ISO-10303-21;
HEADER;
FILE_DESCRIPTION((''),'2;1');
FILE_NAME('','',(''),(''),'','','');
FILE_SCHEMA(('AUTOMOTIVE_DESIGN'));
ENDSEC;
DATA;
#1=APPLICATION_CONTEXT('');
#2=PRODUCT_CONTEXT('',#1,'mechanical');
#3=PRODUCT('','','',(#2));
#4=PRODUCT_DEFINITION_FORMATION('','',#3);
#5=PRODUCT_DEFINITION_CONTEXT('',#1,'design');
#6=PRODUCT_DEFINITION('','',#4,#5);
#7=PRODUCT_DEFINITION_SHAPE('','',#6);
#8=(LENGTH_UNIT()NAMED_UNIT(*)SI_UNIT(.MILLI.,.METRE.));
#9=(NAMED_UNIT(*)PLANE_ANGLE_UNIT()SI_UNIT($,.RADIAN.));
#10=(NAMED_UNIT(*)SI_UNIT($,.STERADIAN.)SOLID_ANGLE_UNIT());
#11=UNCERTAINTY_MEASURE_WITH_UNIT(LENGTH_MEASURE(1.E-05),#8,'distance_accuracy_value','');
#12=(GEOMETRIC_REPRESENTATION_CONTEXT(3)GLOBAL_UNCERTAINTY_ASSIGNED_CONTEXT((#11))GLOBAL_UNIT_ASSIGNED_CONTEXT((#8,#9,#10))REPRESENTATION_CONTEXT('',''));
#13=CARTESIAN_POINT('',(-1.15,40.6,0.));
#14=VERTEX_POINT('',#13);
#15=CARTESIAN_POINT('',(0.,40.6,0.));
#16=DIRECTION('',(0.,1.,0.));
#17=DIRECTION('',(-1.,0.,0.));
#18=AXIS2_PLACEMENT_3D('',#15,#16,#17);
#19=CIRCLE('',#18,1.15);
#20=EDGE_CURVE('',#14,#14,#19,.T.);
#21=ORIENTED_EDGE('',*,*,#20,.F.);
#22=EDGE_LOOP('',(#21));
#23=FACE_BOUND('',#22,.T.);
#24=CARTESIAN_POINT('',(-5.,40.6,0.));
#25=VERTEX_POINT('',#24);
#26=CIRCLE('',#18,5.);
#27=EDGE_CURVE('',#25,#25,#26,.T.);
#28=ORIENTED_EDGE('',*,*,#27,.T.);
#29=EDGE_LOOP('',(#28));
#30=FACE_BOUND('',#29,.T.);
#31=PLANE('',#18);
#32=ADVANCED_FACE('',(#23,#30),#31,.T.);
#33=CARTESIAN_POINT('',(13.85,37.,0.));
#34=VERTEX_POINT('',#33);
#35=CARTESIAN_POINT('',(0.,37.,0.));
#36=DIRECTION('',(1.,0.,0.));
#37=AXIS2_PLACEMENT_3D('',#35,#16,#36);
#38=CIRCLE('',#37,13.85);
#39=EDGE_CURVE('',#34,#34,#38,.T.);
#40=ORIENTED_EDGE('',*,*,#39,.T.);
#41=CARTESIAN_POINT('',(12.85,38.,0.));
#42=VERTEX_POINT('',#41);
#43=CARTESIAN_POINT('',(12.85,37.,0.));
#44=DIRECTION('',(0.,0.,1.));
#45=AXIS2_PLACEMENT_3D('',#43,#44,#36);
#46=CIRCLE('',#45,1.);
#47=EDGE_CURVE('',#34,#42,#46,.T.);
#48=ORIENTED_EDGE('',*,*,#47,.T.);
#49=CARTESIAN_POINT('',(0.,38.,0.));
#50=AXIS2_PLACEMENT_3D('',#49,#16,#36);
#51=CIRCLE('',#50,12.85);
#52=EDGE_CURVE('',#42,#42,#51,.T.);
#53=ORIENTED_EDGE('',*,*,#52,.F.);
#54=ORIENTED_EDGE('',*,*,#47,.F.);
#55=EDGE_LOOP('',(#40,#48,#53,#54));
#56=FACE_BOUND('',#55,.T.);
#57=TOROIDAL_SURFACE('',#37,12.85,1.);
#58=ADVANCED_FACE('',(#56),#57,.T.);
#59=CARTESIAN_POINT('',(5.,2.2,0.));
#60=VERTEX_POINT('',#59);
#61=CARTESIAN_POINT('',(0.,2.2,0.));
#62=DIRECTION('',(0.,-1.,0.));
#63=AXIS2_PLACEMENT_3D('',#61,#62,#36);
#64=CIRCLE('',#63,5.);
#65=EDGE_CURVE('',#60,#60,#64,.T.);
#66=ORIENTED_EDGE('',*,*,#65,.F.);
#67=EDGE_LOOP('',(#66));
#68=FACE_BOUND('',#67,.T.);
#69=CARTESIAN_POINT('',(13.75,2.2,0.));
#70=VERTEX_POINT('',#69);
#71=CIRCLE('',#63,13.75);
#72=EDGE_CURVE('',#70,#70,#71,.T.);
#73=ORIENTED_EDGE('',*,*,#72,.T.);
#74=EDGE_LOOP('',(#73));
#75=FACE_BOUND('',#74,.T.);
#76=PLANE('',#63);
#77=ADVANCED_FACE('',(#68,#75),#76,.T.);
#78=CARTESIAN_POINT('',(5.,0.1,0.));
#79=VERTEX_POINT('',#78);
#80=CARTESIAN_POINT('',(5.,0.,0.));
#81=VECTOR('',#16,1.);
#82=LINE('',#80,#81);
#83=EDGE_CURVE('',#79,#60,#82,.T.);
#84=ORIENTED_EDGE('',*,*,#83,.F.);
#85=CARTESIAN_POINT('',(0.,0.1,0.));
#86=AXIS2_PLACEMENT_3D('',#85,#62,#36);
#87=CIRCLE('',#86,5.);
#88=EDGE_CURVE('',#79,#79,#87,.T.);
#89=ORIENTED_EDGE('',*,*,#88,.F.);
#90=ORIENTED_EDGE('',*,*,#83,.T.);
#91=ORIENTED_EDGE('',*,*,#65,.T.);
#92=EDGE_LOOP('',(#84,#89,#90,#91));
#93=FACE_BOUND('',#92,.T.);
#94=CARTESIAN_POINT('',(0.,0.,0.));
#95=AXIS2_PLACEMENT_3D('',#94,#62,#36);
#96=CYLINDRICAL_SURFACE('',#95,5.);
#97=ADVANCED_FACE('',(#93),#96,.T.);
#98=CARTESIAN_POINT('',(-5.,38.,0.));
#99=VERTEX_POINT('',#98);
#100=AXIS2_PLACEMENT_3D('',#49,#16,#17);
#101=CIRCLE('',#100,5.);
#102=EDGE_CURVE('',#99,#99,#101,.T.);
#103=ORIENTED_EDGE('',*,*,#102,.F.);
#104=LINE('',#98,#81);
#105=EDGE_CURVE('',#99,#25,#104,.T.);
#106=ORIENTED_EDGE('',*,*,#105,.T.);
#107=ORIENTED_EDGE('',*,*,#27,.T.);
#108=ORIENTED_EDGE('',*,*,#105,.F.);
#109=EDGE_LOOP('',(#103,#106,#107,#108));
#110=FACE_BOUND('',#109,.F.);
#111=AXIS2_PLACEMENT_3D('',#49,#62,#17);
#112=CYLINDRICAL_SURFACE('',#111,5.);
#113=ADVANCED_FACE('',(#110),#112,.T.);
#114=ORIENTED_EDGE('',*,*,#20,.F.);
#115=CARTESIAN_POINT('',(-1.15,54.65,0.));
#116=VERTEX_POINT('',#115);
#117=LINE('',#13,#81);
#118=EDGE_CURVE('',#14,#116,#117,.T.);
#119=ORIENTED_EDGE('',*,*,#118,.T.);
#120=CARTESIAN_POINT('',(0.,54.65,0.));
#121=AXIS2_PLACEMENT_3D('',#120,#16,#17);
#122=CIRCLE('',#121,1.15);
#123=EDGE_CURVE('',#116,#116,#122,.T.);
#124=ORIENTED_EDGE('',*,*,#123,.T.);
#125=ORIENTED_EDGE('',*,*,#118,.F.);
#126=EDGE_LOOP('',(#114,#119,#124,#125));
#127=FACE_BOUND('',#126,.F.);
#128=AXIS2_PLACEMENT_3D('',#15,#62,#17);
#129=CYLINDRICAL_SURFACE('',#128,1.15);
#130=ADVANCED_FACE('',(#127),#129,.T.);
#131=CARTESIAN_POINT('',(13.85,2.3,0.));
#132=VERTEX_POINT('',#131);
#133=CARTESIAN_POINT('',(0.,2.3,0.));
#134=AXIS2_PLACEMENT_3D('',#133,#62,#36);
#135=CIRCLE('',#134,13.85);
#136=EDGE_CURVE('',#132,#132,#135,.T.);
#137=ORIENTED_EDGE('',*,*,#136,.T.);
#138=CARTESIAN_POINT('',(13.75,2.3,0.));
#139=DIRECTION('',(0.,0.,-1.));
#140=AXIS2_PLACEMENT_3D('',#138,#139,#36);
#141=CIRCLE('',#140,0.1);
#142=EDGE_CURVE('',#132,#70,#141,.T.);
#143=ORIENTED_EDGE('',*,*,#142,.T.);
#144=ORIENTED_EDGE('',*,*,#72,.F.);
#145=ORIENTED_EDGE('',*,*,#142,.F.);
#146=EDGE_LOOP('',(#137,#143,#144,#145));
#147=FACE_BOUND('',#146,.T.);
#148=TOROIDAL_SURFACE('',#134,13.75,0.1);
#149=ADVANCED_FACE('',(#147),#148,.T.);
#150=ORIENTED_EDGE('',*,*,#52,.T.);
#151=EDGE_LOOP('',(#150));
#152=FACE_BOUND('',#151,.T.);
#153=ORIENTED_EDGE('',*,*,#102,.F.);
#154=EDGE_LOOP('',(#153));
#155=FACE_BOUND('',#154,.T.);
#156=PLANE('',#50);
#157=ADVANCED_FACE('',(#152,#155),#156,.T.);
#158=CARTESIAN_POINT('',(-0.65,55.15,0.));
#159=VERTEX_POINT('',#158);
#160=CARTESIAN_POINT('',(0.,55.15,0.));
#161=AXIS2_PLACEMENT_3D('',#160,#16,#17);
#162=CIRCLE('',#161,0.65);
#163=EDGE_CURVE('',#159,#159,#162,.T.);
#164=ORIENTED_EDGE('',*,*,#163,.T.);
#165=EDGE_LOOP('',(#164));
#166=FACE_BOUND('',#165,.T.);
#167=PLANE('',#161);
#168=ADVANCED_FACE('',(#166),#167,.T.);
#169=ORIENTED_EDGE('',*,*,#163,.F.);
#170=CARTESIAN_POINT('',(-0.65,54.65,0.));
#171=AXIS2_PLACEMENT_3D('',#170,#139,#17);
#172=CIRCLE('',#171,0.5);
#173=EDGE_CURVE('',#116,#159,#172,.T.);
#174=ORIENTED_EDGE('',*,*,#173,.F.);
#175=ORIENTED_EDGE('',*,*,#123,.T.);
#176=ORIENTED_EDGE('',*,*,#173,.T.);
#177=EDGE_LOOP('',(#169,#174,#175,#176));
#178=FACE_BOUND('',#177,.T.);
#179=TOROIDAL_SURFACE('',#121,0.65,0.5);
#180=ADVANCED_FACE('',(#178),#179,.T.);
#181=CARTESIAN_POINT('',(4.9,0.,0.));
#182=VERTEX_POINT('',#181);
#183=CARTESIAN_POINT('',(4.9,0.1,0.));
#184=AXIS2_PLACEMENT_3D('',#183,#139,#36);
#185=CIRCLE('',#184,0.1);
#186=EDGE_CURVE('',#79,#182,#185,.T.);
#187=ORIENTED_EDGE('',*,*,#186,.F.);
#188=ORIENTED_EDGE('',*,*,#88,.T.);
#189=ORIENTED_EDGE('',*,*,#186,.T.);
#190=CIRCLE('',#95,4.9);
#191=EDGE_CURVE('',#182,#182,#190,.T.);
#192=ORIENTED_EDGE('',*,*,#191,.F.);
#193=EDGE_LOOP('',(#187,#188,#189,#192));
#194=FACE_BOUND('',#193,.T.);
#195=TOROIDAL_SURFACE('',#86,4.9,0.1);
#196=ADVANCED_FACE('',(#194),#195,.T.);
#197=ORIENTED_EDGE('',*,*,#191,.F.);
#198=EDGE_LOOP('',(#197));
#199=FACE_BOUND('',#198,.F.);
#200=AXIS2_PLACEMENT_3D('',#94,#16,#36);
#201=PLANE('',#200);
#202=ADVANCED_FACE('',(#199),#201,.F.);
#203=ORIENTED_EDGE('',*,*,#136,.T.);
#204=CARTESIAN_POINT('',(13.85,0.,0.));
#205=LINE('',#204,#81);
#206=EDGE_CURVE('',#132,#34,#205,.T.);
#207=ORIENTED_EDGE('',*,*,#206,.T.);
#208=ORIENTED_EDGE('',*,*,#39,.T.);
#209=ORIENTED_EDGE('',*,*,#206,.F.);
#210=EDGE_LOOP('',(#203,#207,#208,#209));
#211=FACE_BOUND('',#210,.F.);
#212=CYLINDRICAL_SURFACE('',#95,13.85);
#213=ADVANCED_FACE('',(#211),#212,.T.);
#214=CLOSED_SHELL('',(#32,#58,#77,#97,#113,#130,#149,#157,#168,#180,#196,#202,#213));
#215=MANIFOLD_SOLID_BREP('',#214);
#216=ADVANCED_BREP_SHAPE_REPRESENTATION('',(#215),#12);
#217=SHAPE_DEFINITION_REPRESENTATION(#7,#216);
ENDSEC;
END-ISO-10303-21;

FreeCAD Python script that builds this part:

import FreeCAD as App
import Part
import Sketcher
Q = App.Units.Quantity


def edges_at(feature, points):
    """Names of the edges that pass closest to the given points."""
    edges = feature.Shape.Edges
    near = lambda p: min(range(len(edges)), key=lambda i: edges[i].distToShape(Part.Vertex(*p))[0])
    return sorted({f"Edge{near(p) + 1}" for p in points})

doc = App.newDocument("Part")
body = doc.addObject("PartDesign::Body", "Body")

# Sketch on XZ plane
sketch1 = body.newObject("Sketcher::SketchObject", "Sketch")
sketch1.AttachmentSupport = (doc.getObject("XZ_Plane"), [""])
sketch1.MapMode = "FlatFace"
sketch1.addGeometry(Part.Circle(App.Vector(0, 0, 0), App.Vector(0, 0, 1), 13.85), False)
sketch1.addConstraint(Sketcher.Constraint("Coincident", 0, 3, -1, 1))
sketch1.addConstraint(Sketcher.Constraint("Diameter", 0, Q("27.7 mm")))
pad1 = body.newObject("PartDesign::Pad", "Pad")
pad1.Profile = sketch1
pad1.Length = 38
pad1.Reversed = True

# Sketch on XZ plane
sketch2 = body.newObject("Sketcher::SketchObject", "Sketch001")
sketch2.AttachmentSupport = (doc.getObject("XZ_Plane"), [""])
sketch2.MapMode = "FlatFace"
sketch2.AttachmentOffset = App.Placement(App.Vector(0, 0, -38), App.Rotation())
sketch2.addGeometry(Part.Circle(App.Vector(0, 0, 0), App.Vector(0, 0, 1), 5), False)
sketch2.addConstraint(Sketcher.Constraint("Coincident", 0, 3, -1, 1))
sketch2.addConstraint(Sketcher.Constraint("Diameter", 0, Q("10 mm")))
pad2 = body.newObject("PartDesign::Pad", "Pad001")
pad2.Profile = sketch2
pad2.Length = 2.6
pad2.Reversed = True

# Sketch on XZ plane
sketch3 = body.newObject("Sketcher::SketchObject", "Sketch002")
sketch3.AttachmentSupport = (doc.getObject("XZ_Plane"), [""])
sketch3.MapMode = "FlatFace"
sketch3.AttachmentOffset = App.Placement(App.Vector(0, 0, -40.6), App.Rotation())
sketch3.addGeometry(Part.Circle(App.Vector(0, 0, 0), App.Vector(0, 0, 1), 1.15), False)
sketch3.addConstraint(Sketcher.Constraint("Coincident", 0, 3, -1, 1))
sketch3.addConstraint(Sketcher.Constraint("Diameter", 0, Q("2.3 mm")))
pad3 = body.newObject("PartDesign::Pad", "Pad002")
pad3.Profile = sketch3
pad3.Length = 14.55
pad3.Reversed = True

# Sketch on XZ plane
sketch4 = body.newObject("Sketcher::SketchObject", "Sketch003")
sketch4.AttachmentSupport = (doc.getObject("XZ_Plane"), [""])
sketch4.MapMode = "FlatFace"
sketch4.addGeometry(Part.Circle(App.Vector(0, 0, 0), App.Vector(0, 0, 1), 13.85), False)
sketch4.addGeometry(Part.Circle(App.Vector(0, 0, 0), App.Vector(0, 0, 1), 5), False)
sketch4.addConstraint(Sketcher.Constraint("Coincident", 0, 3, -1, 1))
sketch4.addConstraint(Sketcher.Constraint("Coincident", 1, 3, -1, 1))
sketch4.addConstraint(Sketcher.Constraint("Diameter", 1, Q("10 mm")))
sketch4.addConstraint(Sketcher.Constraint("Diameter", 0, Q("27.7 mm")))
pocket1 = body.newObject("PartDesign::Pocket", "Pocket")
pocket1.Profile = sketch4
pocket1.Length = 2.2
doc.recompute()

fillet = body.newObject("PartDesign::Fillet", "Fillet")
fillet.Base = (pocket1, edges_at(pocket1, [(-12.913, 38, 5.008)]))
fillet.Radius = 1
doc.recompute()

fillet2 = body.newObject("PartDesign::Fillet", "Fillet001")
fillet2.Base = (fillet, edges_at(fillet, [(1.072, 55.15, -0.416)]))
fillet2.Radius = 0.5
doc.recompute()

fillet3 = body.newObject("PartDesign::Fillet", "Fillet002")
fillet3.Base = (fillet2, edges_at(fillet2, [(-12.913, 2.2, 5.008), (-4.662, 0, -1.808)]))
fillet3.Radius = 0.1

doc.recompute()
